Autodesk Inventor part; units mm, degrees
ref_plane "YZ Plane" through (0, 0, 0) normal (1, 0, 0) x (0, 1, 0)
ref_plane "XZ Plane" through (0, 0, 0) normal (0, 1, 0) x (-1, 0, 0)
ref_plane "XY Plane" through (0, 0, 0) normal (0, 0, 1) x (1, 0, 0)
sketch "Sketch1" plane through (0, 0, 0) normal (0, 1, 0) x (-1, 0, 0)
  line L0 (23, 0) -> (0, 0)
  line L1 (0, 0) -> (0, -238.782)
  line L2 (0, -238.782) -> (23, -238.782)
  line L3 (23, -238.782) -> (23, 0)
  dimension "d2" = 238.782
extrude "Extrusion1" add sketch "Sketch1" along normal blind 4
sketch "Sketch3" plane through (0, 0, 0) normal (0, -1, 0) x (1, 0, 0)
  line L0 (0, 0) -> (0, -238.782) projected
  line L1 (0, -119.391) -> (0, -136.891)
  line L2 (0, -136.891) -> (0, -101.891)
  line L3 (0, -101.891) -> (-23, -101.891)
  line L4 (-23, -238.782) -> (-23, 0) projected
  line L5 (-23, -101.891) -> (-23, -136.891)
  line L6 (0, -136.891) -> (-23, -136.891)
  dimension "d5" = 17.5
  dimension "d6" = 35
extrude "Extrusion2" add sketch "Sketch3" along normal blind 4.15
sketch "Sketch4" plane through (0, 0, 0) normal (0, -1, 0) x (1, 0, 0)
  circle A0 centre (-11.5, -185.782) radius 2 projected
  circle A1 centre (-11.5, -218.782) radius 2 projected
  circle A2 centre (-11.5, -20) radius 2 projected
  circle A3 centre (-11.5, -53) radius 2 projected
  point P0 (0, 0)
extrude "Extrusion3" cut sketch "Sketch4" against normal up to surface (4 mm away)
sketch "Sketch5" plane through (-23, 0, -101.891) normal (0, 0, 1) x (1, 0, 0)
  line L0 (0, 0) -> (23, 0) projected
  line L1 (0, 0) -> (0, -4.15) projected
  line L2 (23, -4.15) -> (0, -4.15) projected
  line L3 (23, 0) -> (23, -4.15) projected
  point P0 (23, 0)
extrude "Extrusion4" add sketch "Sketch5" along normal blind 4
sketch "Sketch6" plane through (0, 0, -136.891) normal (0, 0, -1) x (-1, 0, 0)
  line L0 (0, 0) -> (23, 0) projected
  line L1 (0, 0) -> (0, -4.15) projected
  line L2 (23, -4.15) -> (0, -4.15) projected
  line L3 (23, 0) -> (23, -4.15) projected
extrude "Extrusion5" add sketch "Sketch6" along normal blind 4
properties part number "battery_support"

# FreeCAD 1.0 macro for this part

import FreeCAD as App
import Part
import Sketcher

V = App.Vector
Q = App.Units.Quantity


def add_polygon(sketch, points):
    """Adds a closed chain of lines whose ends are joined by coincident constraints."""
    first, n = sketch.GeometryCount, len(points)
    for a, b in zip(points, points[1:] + points[:1]):
        sketch.addGeometry(Part.LineSegment(App.Vector(*a, 0), App.Vector(*b, 0)), False)
    for i in range(n):
        sketch.addConstraint(Sketcher.Constraint("Coincident", first + i, 2, first + (i + 1) % n, 1))

doc = App.newDocument("Part")
body = doc.addObject("PartDesign::Body", "Body")

# Sketch on XZ plane
sketch1 = body.newObject("Sketcher::SketchObject", "Sketch")
sketch1.AttachmentSupport = (doc.getObject("XZ_Plane"), [""])
sketch1.MapMode = "FlatFace"
add_polygon(sketch1, [(-23, -239), (-23, 0), (0, 0), (0, -239)])  # lines 0-3
sketch1.addConstraint(Sketcher.Constraint("Vertical", 0))
sketch1.addConstraint(Sketcher.Constraint("Horizontal", 1))
sketch1.addConstraint(Sketcher.Constraint("Vertical", 2))
sketch1.addConstraint(Sketcher.Constraint("Horizontal", 3))
sketch1.addConstraint(Sketcher.Constraint("Coincident", 1, 2, -1, 1))
sketch1.addConstraint(Sketcher.Constraint("DistanceX", 1, 1, 1, 2, Q("23 mm")))
sketch1.addConstraint(Sketcher.Constraint("DistanceY", 0, 1, 0, 2, Q("238.782 mm")))
pad1 = body.newObject("PartDesign::Pad", "Pad")
pad1.Profile = sketch1
pad1.Length = 4
pad1.Reversed = True

# Sketch on XZ plane
sketch2 = body.newObject("Sketcher::SketchObject", "Sketch001")
sketch2.AttachmentSupport = (doc.getObject("XZ_Plane"), [""])
sketch2.MapMode = "FlatFace"
add_polygon(sketch2, [(0, -137), (0, -102), (-23, -102), (-23, -137)])  # lines 0-3
sketch2.addConstraint(Sketcher.Constraint("Vertical", 0))
sketch2.addConstraint(Sketcher.Constraint("Horizontal", 1))
sketch2.addConstraint(Sketcher.Constraint("Vertical", 2))
sketch2.addConstraint(Sketcher.Constraint("Horizontal", 3))
sketch2.addConstraint(Sketcher.Constraint("PointOnObject", 0, 2, -2))
sketch2.addConstraint(Sketcher.Constraint("DistanceY", 0, 1, 0, 2, Q("35 mm")))
sketch2.addConstraint(Sketcher.Constraint("DistanceX", 1, 2, 1, 1, Q("23 mm")))
sketch2.addConstraint(Sketcher.Constraint("DistanceY", 0, 2, -1, 1, Q("101.891 mm")))
pad2 = body.newObject("PartDesign::Pad", "Pad001")
pad2.Profile = sketch2
pad2.Length = 4.15

# Sketch on XZ plane
sketch3 = body.newObject("Sketcher::SketchObject", "Sketch002")
sketch3.AttachmentSupport = (doc.getObject("XZ_Plane"), [""])
sketch3.MapMode = "FlatFace"
sketch3.addGeometry(Part.Circle(V(-11.5, -185.8, 0), V(0, 0, 1), 2), False)
sketch3.addGeometry(Part.Circle(V(-11.5, -218.8, 0), V(0, 0, 1), 2), False)
sketch3.addGeometry(Part.Circle(V(-11.5, -20, 0), V(0, 0, 1), 2), False)
sketch3.addGeometry(Part.Circle(V(-11.5, -53, 0), V(0, 0, 1), 2), False)
sketch3.addConstraint(Sketcher.Constraint("Equal", 0, 1))
sketch3.addConstraint(Sketcher.Constraint("Equal", 1, 2))
sketch3.addConstraint(Sketcher.Constraint("Equal", 2, 3))
sketch3.addConstraint(Sketcher.Constraint("Vertical", 0, 3, 1, 3))
sketch3.addConstraint(Sketcher.Constraint("Vertical", 1, 3, 2, 3))
sketch3.addConstraint(Sketcher.Constraint("Vertical", 2, 3, 3, 3))
sketch3.addConstraint(Sketcher.Constraint("Diameter", 0, Q("4 mm")))
sketch3.addConstraint(Sketcher.Constraint("DistanceY", 2, 3, -1, 1, Q("20 mm")))
sketch3.addConstraint(Sketcher.Constraint("DistanceY", 3, 3, -1, 1, Q("53 mm")))
sketch3.addConstraint(Sketcher.Constraint("DistanceY", 1, 3, 0, 3, Q("33 mm")))
sketch3.addConstraint(Sketcher.Constraint("DistanceX", 0, 3, -1, 1, Q("11.5 mm")))
sketch3.addConstraint(Sketcher.Constraint("DistanceY", 0, 3, -1, 1, Q("185.782 mm")))
pocket1 = body.newObject("PartDesign::Pocket", "Pocket")
pocket1.Profile = sketch3
pocket1.Length = 4

# Sketch on XY plane
sketch4 = body.newObject("Sketcher::SketchObject", "Sketch003")
sketch4.AttachmentSupport = (doc.getObject("XY_Plane"), [""])
sketch4.MapMode = "FlatFace"
sketch4.AttachmentOffset = App.Placement(V(0, 0, -101.891), App.Rotation())
add_polygon(sketch4, [(0, 0), (-23, 0), (-23, -4.2), (0, -4.2)])  # lines 0-3
sketch4.addConstraint(Sketcher.Constraint("Horizontal", 0))
sketch4.addConstraint(Sketcher.Constraint("Vertical", 1))
sketch4.addConstraint(Sketcher.Constraint("Horizontal", 2))
sketch4.addConstraint(Sketcher.Constraint("Vertical", 3))
sketch4.addConstraint(Sketcher.Constraint("Coincident", 3, 2, -1, 1))
sketch4.addConstraint(Sketcher.Constraint("DistanceX", 0, 2, 0, 1, Q("23 mm")))
sketch4.addConstraint(Sketcher.Constraint("DistanceY", 1, 2, 1, 1, Q("4.15 mm")))
pad3 = body.newObject("PartDesign::Pad", "Pad002")
pad3.Profile = sketch4
pad3.Length = 4

# Sketch on XY plane
sketch5 = body.newObject("Sketcher::SketchObject", "Sketch004")
sketch5.AttachmentSupport = (doc.getObject("XY_Plane"), [""])
sketch5.MapMode = "FlatFace"
sketch5.AttachmentOffset = App.Placement(V(0, 0, -136.891), App.Rotation())
add_polygon(sketch5, [(-23, 0), (0, 0), (0, -4.2), (-23, -4.2)])  # lines 0-3
sketch5.addConstraint(Sketcher.Constraint("Horizontal", 0))
sketch5.addConstraint(Sketcher.Constraint("Vertical", 1))
sketch5.addConstraint(Sketcher.Constraint("Horizontal", 2))
sketch5.addConstraint(Sketcher.Constraint("Vertical", 3))
sketch5.addConstraint(Sketcher.Constraint("Coincident", 0, 2, -1, 1))
sketch5.addConstraint(Sketcher.Constraint("DistanceX", 0, 1, 0, 2, Q("23 mm")))
sketch5.addConstraint(Sketcher.Constraint("DistanceY", 1, 2, 1, 1, Q("4.15 mm")))
pad4 = body.newObject("PartDesign::Pad", "Pad003")
pad4.Profile = sketch5
pad4.Length = 4
pad4.Reversed = True

doc.recompute()
